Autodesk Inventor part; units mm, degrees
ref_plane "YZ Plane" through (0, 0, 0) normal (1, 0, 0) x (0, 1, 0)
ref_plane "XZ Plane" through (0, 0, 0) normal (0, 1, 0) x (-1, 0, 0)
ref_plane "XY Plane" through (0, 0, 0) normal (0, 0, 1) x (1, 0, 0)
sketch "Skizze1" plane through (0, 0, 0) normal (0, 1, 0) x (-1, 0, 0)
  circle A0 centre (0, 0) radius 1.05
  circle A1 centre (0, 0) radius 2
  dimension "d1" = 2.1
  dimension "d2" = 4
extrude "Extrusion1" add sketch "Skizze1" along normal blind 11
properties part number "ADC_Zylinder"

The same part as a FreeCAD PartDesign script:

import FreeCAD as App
import Part
import Sketcher
from FreeCAD import Vector
Q = App.Units.Quantity

doc = App.newDocument("Part")
body = doc.addObject("PartDesign::Body", "Body")

# Sketch on XZ plane
sketch1 = body.newObject("Sketcher::SketchObject", "Sketch")
sketch1.AttachmentSupport = (doc.getObject("XZ_Plane"), [""])
sketch1.MapMode = "FlatFace"
sketch1.addGeometry([
    Part.Circle(Vector(0, 0, 0), Vector(0, 0, 1), 2),
    Part.Circle(Vector(0, 0, 0), Vector(0, 0, 1), 1.1),
], False)
sketch1.addConstraint([
    Sketcher.Constraint("Coincident", 0, 3, -1, 1),
    Sketcher.Constraint("Coincident", 1, 3, -1, 1),
    Sketcher.Constraint("Diameter", 0, Q("4 mm")),
    Sketcher.Constraint("Diameter", 1, Q("2.1 mm")),
])
pad1 = body.newObject("PartDesign::Pad", "Pad")
pad1.Profile = sketch1
pad1.Length = 11
pad1.Reversed = True

doc.recompute()
